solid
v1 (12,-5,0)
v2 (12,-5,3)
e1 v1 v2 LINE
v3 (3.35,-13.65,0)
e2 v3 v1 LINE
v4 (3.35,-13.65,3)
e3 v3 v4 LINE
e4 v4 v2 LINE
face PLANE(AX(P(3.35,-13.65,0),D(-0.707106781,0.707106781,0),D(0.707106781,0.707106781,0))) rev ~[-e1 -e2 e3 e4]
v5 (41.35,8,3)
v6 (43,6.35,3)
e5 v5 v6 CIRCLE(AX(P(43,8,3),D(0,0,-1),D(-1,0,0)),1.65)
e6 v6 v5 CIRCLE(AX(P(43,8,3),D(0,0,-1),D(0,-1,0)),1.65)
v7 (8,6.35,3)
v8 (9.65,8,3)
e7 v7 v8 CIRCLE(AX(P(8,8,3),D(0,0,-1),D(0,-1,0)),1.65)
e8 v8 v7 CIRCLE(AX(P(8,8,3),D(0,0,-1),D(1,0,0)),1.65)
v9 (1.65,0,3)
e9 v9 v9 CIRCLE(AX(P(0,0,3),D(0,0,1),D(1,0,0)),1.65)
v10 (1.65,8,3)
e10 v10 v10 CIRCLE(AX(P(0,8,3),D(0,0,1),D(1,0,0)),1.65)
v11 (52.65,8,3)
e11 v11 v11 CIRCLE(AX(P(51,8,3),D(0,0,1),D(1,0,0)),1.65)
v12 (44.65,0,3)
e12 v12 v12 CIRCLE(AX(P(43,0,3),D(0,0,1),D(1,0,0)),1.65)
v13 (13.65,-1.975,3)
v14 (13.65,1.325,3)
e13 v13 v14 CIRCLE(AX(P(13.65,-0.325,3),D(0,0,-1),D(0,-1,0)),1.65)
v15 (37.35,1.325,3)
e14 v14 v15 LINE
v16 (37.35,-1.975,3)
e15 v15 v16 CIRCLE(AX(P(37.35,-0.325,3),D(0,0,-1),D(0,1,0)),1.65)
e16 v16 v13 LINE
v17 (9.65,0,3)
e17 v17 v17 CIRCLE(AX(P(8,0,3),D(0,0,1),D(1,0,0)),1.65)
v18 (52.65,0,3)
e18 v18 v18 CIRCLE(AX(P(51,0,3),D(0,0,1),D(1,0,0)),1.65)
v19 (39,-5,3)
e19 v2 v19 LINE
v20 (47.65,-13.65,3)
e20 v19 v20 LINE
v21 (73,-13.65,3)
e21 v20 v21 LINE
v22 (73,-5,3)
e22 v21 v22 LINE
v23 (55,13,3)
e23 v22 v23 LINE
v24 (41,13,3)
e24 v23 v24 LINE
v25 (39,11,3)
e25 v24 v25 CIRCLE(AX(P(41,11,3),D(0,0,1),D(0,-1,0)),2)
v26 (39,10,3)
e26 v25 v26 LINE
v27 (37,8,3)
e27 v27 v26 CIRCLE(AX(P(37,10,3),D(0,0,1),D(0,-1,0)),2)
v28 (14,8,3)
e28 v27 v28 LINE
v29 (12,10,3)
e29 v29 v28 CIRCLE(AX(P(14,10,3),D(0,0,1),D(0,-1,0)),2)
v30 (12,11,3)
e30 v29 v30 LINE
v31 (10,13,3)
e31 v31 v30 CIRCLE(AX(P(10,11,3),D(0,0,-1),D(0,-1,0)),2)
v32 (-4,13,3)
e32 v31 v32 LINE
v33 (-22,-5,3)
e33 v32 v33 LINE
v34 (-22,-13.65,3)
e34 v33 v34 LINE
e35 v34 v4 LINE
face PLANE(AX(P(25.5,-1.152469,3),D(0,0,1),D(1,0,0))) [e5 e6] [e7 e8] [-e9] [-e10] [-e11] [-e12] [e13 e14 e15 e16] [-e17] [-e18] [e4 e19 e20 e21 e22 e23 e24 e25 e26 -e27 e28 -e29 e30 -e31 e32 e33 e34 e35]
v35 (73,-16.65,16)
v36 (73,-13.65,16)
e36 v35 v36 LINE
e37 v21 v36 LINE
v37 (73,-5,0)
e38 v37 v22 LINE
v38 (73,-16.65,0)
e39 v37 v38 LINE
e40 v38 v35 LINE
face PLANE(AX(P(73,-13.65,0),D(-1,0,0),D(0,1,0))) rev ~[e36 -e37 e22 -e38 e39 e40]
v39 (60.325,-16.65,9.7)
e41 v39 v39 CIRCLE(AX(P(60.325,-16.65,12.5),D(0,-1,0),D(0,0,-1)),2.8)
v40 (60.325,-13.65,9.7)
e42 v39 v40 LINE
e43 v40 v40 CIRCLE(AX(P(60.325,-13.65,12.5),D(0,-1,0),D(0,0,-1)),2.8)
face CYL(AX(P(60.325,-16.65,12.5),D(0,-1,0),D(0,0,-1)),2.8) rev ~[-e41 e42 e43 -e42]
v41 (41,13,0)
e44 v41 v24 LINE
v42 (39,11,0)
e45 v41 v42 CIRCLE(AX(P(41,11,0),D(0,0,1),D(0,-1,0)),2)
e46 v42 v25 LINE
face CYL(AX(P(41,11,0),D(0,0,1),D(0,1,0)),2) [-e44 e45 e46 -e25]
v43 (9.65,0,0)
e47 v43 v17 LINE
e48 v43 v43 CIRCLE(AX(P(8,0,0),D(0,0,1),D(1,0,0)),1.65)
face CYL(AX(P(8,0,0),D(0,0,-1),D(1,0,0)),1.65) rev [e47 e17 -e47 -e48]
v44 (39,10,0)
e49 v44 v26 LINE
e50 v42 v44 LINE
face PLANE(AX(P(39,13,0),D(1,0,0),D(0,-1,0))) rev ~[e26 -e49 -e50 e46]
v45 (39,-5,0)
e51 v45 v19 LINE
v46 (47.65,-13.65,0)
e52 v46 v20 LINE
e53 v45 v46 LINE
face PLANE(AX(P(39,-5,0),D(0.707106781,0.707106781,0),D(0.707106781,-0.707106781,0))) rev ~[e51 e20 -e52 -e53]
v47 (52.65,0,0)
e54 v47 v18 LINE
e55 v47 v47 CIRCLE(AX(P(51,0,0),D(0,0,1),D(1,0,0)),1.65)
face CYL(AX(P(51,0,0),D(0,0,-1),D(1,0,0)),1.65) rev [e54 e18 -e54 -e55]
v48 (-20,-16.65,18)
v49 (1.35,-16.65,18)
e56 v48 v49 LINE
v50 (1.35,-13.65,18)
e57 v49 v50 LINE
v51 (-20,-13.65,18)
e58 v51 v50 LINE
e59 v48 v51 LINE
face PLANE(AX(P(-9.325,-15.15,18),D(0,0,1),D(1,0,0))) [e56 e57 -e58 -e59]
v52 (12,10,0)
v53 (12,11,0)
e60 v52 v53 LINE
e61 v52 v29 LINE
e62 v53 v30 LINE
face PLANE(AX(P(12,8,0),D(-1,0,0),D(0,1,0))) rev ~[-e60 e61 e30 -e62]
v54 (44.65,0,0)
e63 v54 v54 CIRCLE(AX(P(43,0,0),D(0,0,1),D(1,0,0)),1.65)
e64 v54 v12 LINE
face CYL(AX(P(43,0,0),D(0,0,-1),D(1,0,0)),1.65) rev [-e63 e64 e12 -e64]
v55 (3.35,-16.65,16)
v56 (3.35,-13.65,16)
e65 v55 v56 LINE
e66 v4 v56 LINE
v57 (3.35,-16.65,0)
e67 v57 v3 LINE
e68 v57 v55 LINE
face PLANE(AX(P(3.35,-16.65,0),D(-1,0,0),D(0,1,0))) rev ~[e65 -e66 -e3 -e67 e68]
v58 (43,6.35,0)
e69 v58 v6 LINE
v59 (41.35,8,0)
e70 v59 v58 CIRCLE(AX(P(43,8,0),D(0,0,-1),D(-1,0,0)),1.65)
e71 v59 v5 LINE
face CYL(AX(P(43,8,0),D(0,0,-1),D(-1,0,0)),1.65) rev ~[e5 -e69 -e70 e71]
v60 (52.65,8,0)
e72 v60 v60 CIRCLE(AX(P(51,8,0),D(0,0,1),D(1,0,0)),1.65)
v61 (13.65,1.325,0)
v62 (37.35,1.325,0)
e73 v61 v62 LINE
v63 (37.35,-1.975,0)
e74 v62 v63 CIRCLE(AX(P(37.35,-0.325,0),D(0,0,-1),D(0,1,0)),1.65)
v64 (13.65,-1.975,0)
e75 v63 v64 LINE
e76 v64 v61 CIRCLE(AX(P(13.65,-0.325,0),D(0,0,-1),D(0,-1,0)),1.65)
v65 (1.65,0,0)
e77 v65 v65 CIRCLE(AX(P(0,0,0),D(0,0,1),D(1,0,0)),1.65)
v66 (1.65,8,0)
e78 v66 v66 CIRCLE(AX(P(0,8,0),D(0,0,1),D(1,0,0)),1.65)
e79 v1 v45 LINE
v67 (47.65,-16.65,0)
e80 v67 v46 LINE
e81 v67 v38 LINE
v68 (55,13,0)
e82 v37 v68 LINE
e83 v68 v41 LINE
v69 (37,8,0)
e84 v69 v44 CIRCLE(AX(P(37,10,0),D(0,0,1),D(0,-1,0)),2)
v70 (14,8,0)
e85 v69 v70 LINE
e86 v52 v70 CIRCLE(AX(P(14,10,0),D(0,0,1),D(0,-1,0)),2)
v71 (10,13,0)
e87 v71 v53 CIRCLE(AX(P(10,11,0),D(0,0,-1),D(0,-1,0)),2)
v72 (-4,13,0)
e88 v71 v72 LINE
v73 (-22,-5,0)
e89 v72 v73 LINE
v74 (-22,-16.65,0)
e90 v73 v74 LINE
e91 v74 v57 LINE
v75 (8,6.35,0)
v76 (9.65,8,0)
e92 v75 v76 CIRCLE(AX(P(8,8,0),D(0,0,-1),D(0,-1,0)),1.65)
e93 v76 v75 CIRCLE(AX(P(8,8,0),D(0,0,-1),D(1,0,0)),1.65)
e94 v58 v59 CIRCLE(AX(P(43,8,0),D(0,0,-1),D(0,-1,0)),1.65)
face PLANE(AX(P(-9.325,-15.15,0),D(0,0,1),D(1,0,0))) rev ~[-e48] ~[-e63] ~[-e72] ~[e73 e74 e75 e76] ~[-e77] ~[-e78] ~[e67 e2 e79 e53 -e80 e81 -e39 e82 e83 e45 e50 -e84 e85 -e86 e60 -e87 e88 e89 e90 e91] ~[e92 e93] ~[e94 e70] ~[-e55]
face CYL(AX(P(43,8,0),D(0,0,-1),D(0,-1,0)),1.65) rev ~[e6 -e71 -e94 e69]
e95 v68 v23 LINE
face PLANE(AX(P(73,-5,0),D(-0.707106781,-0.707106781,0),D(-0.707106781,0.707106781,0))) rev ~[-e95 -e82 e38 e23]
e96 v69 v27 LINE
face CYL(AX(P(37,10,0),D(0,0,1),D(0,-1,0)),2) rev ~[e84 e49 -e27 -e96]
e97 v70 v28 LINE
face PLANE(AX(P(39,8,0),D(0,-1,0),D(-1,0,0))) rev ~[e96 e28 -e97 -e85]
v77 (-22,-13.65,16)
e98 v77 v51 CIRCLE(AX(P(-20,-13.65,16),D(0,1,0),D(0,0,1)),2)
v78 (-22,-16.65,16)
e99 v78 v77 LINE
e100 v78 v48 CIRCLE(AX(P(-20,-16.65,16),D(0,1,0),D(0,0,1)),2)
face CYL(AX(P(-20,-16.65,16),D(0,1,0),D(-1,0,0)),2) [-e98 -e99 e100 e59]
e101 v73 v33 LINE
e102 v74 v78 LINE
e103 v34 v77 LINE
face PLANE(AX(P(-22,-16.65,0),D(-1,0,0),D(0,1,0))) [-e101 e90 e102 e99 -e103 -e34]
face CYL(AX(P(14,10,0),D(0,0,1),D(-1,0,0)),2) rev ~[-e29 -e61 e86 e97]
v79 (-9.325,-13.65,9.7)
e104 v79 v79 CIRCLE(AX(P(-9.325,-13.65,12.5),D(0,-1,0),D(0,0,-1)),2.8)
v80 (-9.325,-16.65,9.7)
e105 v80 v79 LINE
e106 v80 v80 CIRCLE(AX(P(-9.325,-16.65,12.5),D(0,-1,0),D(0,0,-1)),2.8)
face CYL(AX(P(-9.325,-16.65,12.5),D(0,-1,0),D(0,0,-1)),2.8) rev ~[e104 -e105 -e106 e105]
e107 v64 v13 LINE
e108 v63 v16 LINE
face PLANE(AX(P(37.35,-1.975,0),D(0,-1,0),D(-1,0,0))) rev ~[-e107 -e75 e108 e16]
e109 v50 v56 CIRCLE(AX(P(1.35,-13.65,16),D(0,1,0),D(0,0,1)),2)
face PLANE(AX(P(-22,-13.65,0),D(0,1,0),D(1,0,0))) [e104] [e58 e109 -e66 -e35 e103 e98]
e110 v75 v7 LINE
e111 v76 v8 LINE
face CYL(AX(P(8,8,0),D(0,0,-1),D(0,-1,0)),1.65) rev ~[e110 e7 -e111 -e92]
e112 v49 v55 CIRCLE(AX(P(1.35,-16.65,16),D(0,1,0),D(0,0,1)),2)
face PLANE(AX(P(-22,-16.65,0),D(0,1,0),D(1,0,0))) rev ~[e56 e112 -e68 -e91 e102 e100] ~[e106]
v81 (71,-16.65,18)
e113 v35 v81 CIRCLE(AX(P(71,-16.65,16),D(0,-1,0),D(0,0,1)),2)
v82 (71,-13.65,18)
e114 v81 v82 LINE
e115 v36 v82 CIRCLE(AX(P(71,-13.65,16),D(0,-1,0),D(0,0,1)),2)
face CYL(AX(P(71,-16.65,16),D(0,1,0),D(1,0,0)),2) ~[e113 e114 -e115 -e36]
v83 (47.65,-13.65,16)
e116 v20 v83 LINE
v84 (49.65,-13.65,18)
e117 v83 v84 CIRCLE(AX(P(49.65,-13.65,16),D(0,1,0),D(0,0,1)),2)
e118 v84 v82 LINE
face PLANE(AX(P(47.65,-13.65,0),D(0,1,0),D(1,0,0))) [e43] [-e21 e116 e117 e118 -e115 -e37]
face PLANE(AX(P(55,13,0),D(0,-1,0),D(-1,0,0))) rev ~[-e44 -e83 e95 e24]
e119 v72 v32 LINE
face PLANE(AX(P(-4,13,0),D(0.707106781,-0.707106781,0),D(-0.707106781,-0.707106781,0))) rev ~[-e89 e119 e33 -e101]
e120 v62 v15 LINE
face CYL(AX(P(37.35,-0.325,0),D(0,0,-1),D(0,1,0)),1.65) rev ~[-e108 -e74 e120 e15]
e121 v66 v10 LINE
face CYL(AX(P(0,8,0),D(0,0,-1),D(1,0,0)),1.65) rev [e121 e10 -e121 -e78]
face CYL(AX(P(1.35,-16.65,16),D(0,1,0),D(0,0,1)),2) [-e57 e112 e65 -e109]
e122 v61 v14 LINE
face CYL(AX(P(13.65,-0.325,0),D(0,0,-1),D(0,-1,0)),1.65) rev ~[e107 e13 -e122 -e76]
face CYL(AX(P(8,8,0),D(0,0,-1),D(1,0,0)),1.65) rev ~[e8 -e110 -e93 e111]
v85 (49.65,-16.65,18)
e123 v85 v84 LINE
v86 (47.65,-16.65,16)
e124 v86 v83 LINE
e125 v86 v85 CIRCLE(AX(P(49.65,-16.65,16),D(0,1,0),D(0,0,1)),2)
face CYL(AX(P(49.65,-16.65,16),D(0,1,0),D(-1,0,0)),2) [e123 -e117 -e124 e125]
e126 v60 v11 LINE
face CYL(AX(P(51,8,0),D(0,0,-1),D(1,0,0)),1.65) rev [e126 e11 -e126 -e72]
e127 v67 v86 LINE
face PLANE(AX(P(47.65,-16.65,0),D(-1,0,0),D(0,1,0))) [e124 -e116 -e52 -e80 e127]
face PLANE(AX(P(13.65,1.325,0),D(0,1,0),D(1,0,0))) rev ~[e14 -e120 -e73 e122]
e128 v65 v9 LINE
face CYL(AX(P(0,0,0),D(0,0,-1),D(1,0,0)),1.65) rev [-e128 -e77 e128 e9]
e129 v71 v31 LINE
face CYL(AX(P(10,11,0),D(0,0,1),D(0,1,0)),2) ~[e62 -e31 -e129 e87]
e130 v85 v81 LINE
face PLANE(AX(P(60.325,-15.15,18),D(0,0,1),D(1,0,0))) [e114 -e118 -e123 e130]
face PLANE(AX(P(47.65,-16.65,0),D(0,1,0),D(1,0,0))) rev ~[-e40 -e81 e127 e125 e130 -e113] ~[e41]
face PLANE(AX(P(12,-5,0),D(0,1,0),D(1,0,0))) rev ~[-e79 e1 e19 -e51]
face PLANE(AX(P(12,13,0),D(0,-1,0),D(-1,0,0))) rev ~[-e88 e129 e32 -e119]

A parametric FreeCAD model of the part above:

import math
import FreeCAD as App
import Part
import Sketcher
from FreeCAD import Vector
Q = App.Units.Quantity


def edges_at(feature, points):
    """Names of the edges that pass closest to the given points."""
    edges = feature.Shape.Edges
    near = lambda p: min(range(len(edges)), key=lambda i: edges[i].distToShape(Part.Vertex(*p))[0])
    return sorted({f"Edge{near(p) + 1}" for p in points})

doc = App.newDocument("Part")
body = doc.addObject("PartDesign::Body", "Body")

# Sketch on XY plane
sketch1 = body.newObject("Sketcher::SketchObject", "Sketch")
sketch1.AttachmentSupport = (doc.getObject("XY_Plane"), [""])
sketch1.MapMode = "FlatFace"
sketch1.addGeometry(Part.LineSegment(Vector(3.35, -13.65, 0), Vector(12, -5, 0)), False)
sketch1.addGeometry(Part.LineSegment(Vector(12, -5, 0), Vector(39, -5, 0)), False)
sketch1.addGeometry(Part.LineSegment(Vector(39, -5, 0), Vector(47.65, -13.65, 0)), False)
sketch1.addGeometry(Part.LineSegment(Vector(47.65, -13.65, 0), Vector(73, -13.65, 0)), False)
sketch1.addGeometry(Part.LineSegment(Vector(73, -13.65, 0), Vector(73, -5, 0)), False)
sketch1.addGeometry(Part.LineSegment(Vector(73, -5, 0), Vector(55, 13, 0)), False)
sketch1.addGeometry(Part.LineSegment(Vector(55, 13, 0), Vector(39, 13, 0)), False)
sketch1.addGeometry(Part.LineSegment(Vector(39, 13, 0), Vector(39, 8, 0)), False)
sketch1.addGeometry(Part.LineSegment(Vector(39, 8, 0), Vector(12, 8, 0)), False)
sketch1.addGeometry(Part.LineSegment(Vector(12, 8, 0), Vector(12, 13, 0)), False)
sketch1.addGeometry(Part.LineSegment(Vector(12, 13, 0), Vector(-4, 13, 0)), False)
sketch1.addGeometry(Part.LineSegment(Vector(-4, 13, 0), Vector(-22, -5, 0)), False)
sketch1.addGeometry(Part.LineSegment(Vector(-22, -5, 0), Vector(-22, -13.65, 0)), False)
sketch1.addGeometry(Part.LineSegment(Vector(-22, -13.65, 0), Vector(3.35, -13.65, 0)), False)
sketch1.addGeometry(Part.Circle(Vector(0, 0, 0), Vector(0, 0, 1), 1.65), False)
sketch1.addGeometry(Part.Circle(Vector(8, 0, 0), Vector(0, 0, 1), 1.65), False)
sketch1.addGeometry(Part.LineSegment(Vector(37.35, -1.975, 0), Vector(13.65, -1.975, 0)), False)
sketch1.addGeometry(Part.ArcOfCircle(Part.Circle(Vector(13.65, -0.325, 0), Vector(0, 0, 1), 1.65), math.radians(90), math.radians(270)), False)
sketch1.addGeometry(Part.LineSegment(Vector(13.65, 1.325, 0), Vector(37.35, 1.325, 0)), False)
sketch1.addGeometry(Part.ArcOfCircle(Part.Circle(Vector(37.35, -0.325, 0), Vector(0, 0, 1), 1.65), math.radians(-90), math.radians(90)), False)
sketch1.addGeometry(Part.Circle(Vector(43, 0, 0), Vector(0, 0, 1), 1.65), False)
sketch1.addGeometry(Part.Circle(Vector(51, 0, 0), Vector(0, 0, 1), 1.65), False)
sketch1.addGeometry(Part.Circle(Vector(0, 8, 0), Vector(0, 0, 1), 1.65), False)
sketch1.addGeometry(Part.ArcOfCircle(Part.Circle(Vector(8, 8, 0), Vector(0, 0, 1), 1.65), math.radians(-90), math.radians(0)), False)
sketch1.addGeometry(Part.ArcOfCircle(Part.Circle(Vector(8, 8, 0), Vector(0, 0, 1), 1.65), math.radians(0), math.radians(270)), False)
sketch1.addGeometry(Part.ArcOfCircle(Part.Circle(Vector(43, 8, 0), Vector(0, 0, 1), 1.65), math.radians(-90), math.radians(180)), False)
sketch1.addGeometry(Part.ArcOfCircle(Part.Circle(Vector(43, 8, 0), Vector(0, 0, 1), 1.65), math.radians(180), math.radians(270)), False)
sketch1.addGeometry(Part.Circle(Vector(51, 8, 0), Vector(0, 0, 1), 1.65), False)
sketch1.addConstraint(Sketcher.Constraint("Coincident", 0, 2, 1, 1))
sketch1.addConstraint(Sketcher.Constraint("Coincident", 1, 2, 2, 1))
sketch1.addConstraint(Sketcher.Constraint("Coincident", 2, 2, 3, 1))
sketch1.addConstraint(Sketcher.Constraint("Coincident", 3, 2, 4, 1))
sketch1.addConstraint(Sketcher.Constraint("Coincident", 4, 2, 5, 1))
sketch1.addConstraint(Sketcher.Constraint("Coincident", 5, 2, 6, 1))
sketch1.addConstraint(Sketcher.Constraint("Coincident", 6, 2, 7, 1))
sketch1.addConstraint(Sketcher.Constraint("Coincident", 7, 2, 8, 1))
sketch1.addConstraint(Sketcher.Constraint("Coincident", 8, 2, 9, 1))
sketch1.addConstraint(Sketcher.Constraint("Coincident", 9, 2, 10, 1))
sketch1.addConstraint(Sketcher.Constraint("Coincident", 10, 2, 11, 1))
sketch1.addConstraint(Sketcher.Constraint("Coincident", 11, 2, 12, 1))
sketch1.addConstraint(Sketcher.Constraint("Coincident", 12, 2, 13, 1))
sketch1.addConstraint(Sketcher.Constraint("Coincident", 13, 2, 0, 1))
sketch1.addConstraint(Sketcher.Constraint("Tangent", 16, 2, 17, 2))
sketch1.addConstraint(Sketcher.Constraint("Tangent", 17, 1, 18, 1))
sketch1.addConstraint(Sketcher.Constraint("Tangent", 18, 2, 19, 2))
sketch1.addConstraint(Sketcher.Constraint("Tangent", 19, 1, 16, 1))
sketch1.addConstraint(Sketcher.Constraint("Tangent", 23, 1, 24, 2))
sketch1.addConstraint(Sketcher.Constraint("Coincident", 24, 1, 23, 2))
sketch1.addConstraint(Sketcher.Constraint("Tangent", 25, 1, 26, 2))
sketch1.addConstraint(Sketcher.Constraint("Coincident", 26, 1, 25, 2))
sketch1.addConstraint(Sketcher.Constraint("Horizontal", 1))
sketch1.addConstraint(Sketcher.Constraint("Horizontal", 3))
sketch1.addConstraint(Sketcher.Constraint("Vertical", 4))
sketch1.addConstraint(Sketcher.Constraint("Horizontal", 6))
sketch1.addConstraint(Sketcher.Constraint("Vertical", 7))
sketch1.addConstraint(Sketcher.Constraint("Horizontal", 8))
sketch1.addConstraint(Sketcher.Constraint("Vertical", 9))
sketch1.addConstraint(Sketcher.Constraint("Horizontal", 10))
sketch1.addConstraint(Sketcher.Constraint("Vertical", 12))
sketch1.addConstraint(Sketcher.Constraint("Horizontal", 13))
sketch1.addConstraint(Sketcher.Constraint("Horizontal", 16))
sketch1.addConstraint(Sketcher.Constraint("Horizontal", 18))
sketch1.addConstraint(Sketcher.Constraint("Coincident", 14, 3, -1, 1))
sketch1.addConstraint(Sketcher.Constraint("Equal", 14, 15))
sketch1.addConstraint(Sketcher.Constraint("Equal", 15, 17))
sketch1.addConstraint(Sketcher.Constraint("Equal", 19, 20))
sketch1.addConstraint(Sketcher.Constraint("Equal", 20, 21))
sketch1.addConstraint(Sketcher.Constraint("Equal", 21, 22))
sketch1.addConstraint(Sketcher.Constraint("Equal", 22, 23))
sketch1.addConstraint(Sketcher.Constraint("Equal", 24, 25))
sketch1.addConstraint(Sketcher.Constraint("Equal", 26, 27))
sketch1.addConstraint(Sketcher.Constraint("PointOnObject", 15, 3, -1))
sketch1.addConstraint(Sketcher.Constraint("PointOnObject", 20, 3, -1))
sketch1.addConstraint(Sketcher.Constraint("PointOnObject", 21, 3, -1))
sketch1.addConstraint(Sketcher.Constraint("PointOnObject", 22, 3, -2))
sketch1.addConstraint(Sketcher.Constraint("Perpendicular", 0, 2))
sketch1.addConstraint(Sketcher.Constraint("Parallel", 2, 5))
sketch1.addConstraint(Sketcher.Constraint("Perpendicular", 5, 11))
sketch1.addConstraint(Sketcher.Constraint("Horizontal", 22, 3, 23, 3))
sketch1.addConstraint(Sketcher.Constraint("Horizontal", 24, 3, 25, 3))
sketch1.addConstraint(Sketcher.Constraint("Horizontal", 26, 3, 27, 3))
sketch1.addConstraint(Sketcher.Constraint("Horizontal", 1, 2, 4, 2))
sketch1.addConstraint(Sketcher.Constraint("Horizontal", 27, 3, 7, 2))
sketch1.addConstraint(Sketcher.Constraint("Horizontal", 6, 2, 9, 2))
sketch1.addConstraint(Sketcher.Constraint("Horizontal", 4, 2, 11, 2))
sketch1.addConstraint(Sketcher.Constraint("Horizontal", 3, 2, 12, 2))
sketch1.addConstraint(Sketcher.Constraint("Horizontal", 8, 2, 24, 1))
sketch1.addConstraint(Sketcher.Constraint("Horizontal", 24, 1, 26, 1))
sketch1.addConstraint(Sketcher.Constraint("Vertical", 15, 3, 23, 3))
sketch1.addConstraint(Sketcher.Constraint("Vertical", 20, 3, 25, 3))
sketch1.addConstraint(Sketcher.Constraint("Vertical", 21, 3, 27, 3))
sketch1.addConstraint(Sketcher.Constraint("Vertical", 1, 2, 6, 2))
sketch1.addConstraint(Sketcher.Constraint("Vertical", 0, 2, 8, 2))
sketch1.addConstraint(Sketcher.Constraint("Vertical", 24, 3, 23, 1))
sketch1.addConstraint(Sketcher.Constraint("Vertical", 26, 3, 25, 1))
sketch1.addConstraint(Sketcher.Constraint("Equal", 6, 10))
sketch1.addConstraint(Sketcher.Constraint("Equal", 3, 13))
sketch1.addConstraint(Sketcher.Constraint("Diameter", 14, Q("3.3 mm")))
sketch1.addConstraint(Sketcher.Constraint("DistanceX", 1, 1, 1, 2, Q("27 mm")))
sketch1.addConstraint(Sketcher.Constraint("DistanceX", 6, 2, 6, 1, Q("16 mm")))
sketch1.addConstraint(Sketcher.Constraint("DistanceY", 7, 2, 7, 1, Q("5 mm")))
sketch1.addConstraint(Sketcher.Constraint("DistanceX", 16, 2, 16, 1, Q("23.7 mm")))
sketch1.addConstraint(Sketcher.Constraint("DistanceX", -1, 1, 15, 3, Q("8 mm")))
sketch1.addConstraint(Sketcher.Constraint("DistanceX", -1, 1, 20, 3, Q("43 mm")))
sketch1.addConstraint(Sketcher.Constraint("DistanceX", -1, 1, 21, 3, Q("51 mm")))
sketch1.addConstraint(Sketcher.Constraint("DistanceY", -1, 1, 22, 3, Q("8 mm")))
sketch1.addConstraint(Sketcher.Constraint("DistanceX", -1, 1, 0, 2, Q("12 mm")))
sketch1.addConstraint(Sketcher.Constraint("DistanceY", 0, 2, -1, 1, Q("5 mm")))
sketch1.addConstraint(Sketcher.Constraint("DistanceX", 3, 1, 3, 2, Q("25.35 mm")))
sketch1.addConstraint(Sketcher.Constraint("DistanceX", 19, 3, 2, 2, Q("10.3 mm")))
sketch1.addConstraint(Sketcher.Constraint("DistanceY", 17, 3, -1, 1, Q("0.325 mm")))
pad1 = body.newObject("PartDesign::Pad", "Pad")
pad1.Profile = sketch1
pad1.Length = 3

# Sketch on XY plane
sketch2 = body.newObject("Sketcher::SketchObject", "Sketch001")
sketch2.AttachmentSupport = (doc.getObject("XY_Plane"), [""])
sketch2.MapMode = "FlatFace"
sketch2.addGeometry(Part.LineSegment(Vector(-22, -13.65, 0), Vector(-22, -16.65, 0)), False)
sketch2.addGeometry(Part.LineSegment(Vector(-22, -16.65, 0), Vector(3.35, -16.65, 0)), False)
sketch2.addGeometry(Part.LineSegment(Vector(3.35, -16.65, 0), Vector(3.35, -13.65, 0)), False)
sketch2.addGeometry(Part.LineSegment(Vector(3.35, -13.65, 0), Vector(-22, -13.65, 0)), False)
sketch2.addGeometry(Part.LineSegment(Vector(47.65, -13.65, 0), Vector(47.65, -16.65, 0)), False)
sketch2.addGeometry(Part.LineSegment(Vector(47.65, -16.65, 0), Vector(73, -16.65, 0)), False)
sketch2.addGeometry(Part.LineSegment(Vector(73, -16.65, 0), Vector(73, -13.65, 0)), False)
sketch2.addGeometry(Part.LineSegment(Vector(73, -13.65, 0), Vector(47.65, -13.65, 0)), False)
sketch2.addConstraint(Sketcher.Constraint("Coincident", 0, 2, 1, 1))
sketch2.addConstraint(Sketcher.Constraint("Coincident", 1, 2, 2, 1))
sketch2.addConstraint(Sketcher.Constraint("Coincident", 2, 2, 3, 1))
sketch2.addConstraint(Sketcher.Constraint("Coincident", 3, 2, 0, 1))
sketch2.addConstraint(Sketcher.Constraint("Coincident", 4, 2, 5, 1))
sketch2.addConstraint(Sketcher.Constraint("Coincident", 5, 2, 6, 1))
sketch2.addConstraint(Sketcher.Constraint("Coincident", 6, 2, 7, 1))
sketch2.addConstraint(Sketcher.Constraint("Coincident", 7, 2, 4, 1))
sketch2.addConstraint(Sketcher.Constraint("Vertical", 0))
sketch2.addConstraint(Sketcher.Constraint("Horizontal", 1))
sketch2.addConstraint(Sketcher.Constraint("Vertical", 2))
sketch2.addConstraint(Sketcher.Constraint("Horizontal", 3))
sketch2.addConstraint(Sketcher.Constraint("Vertical", 4))
sketch2.addConstraint(Sketcher.Constraint("Horizontal", 5))
sketch2.addConstraint(Sketcher.Constraint("Vertical", 6))
sketch2.addConstraint(Sketcher.Constraint("Horizontal", 7))
sketch2.addConstraint(Sketcher.Constraint("Horizontal", 1, 2, 4, 2))
sketch2.addConstraint(Sketcher.Constraint("Horizontal", 3, 2, 6, 2))
sketch2.addConstraint(Sketcher.Constraint("Equal", 3, 5))
sketch2.addConstraint(Sketcher.Constraint("DistanceY", 0, 2, 0, 1, Q("3 mm")))
sketch2.addConstraint(Sketcher.Constraint("DistanceX", 0, 2, -1, 1, Q("22 mm")))
sketch2.addConstraint(Sketcher.Constraint("DistanceX", -1, 1, 5, 2, Q("73 mm")))
sketch2.addConstraint(Sketcher.Constraint("DistanceX", 1, 1, 1, 2, Q("25.35 mm")))
sketch2.addConstraint(Sketcher.Constraint("DistanceY", 0, 2, -1, 1, Q("16.65 mm")))
pad2 = body.newObject("PartDesign::Pad", "Pad001")
pad2.Profile = sketch2
pad2.Length = 18

# Sketch on XZ plane
sketch3 = body.newObject("Sketcher::SketchObject", "Sketch002")
sketch3.AttachmentSupport = (doc.getObject("XZ_Plane"), [""])
sketch3.MapMode = "FlatFace"
sketch3.AttachmentOffset = App.Placement(Vector(0, 0, 16.65), App.Rotation())
sketch3.addGeometry(Part.Circle(Vector(60.325, 12.5, 0), Vector(0, 0, 1), 2.8), False)
sketch3.addGeometry(Part.Circle(Vector(-9.325, 12.5, 0), Vector(0, 0, 1), 2.8), False)
sketch3.addConstraint(Sketcher.Constraint("Equal", 0, 1))
sketch3.addConstraint(Sketcher.Constraint("Horizontal", 0, 3, 1, 3))
sketch3.addConstraint(Sketcher.Constraint("Diameter", 0, Q("5.6 mm")))
sketch3.addConstraint(Sketcher.Constraint("DistanceY", -1, 1, 0, 3, Q("12.5 mm")))
sketch3.addConstraint(Sketcher.Constraint("DistanceX", 1, 3, 0, 3, Q("69.65 mm")))
sketch3.addConstraint(Sketcher.Constraint("DistanceX", -1, 1, 0, 3, Q("60.325 mm")))
pocket1 = body.newObject("PartDesign::Pocket", "Pocket")
pocket1.Profile = sketch3
pocket1.Length = 18
doc.recompute()

fillet = body.newObject("PartDesign::Fillet", "Fillet")
fillet.Base = (pocket1, edges_at(pocket1, [
    (39, 13, 1.5),
    (12, 13, 1.5),
    (12, 8, 1.5),
    (39, 8, 1.5),
    (-22, -15.15, 18),
    (3.35, -15.15, 18),
    (47.65, -15.15, 18),
    (73, -15.15, 18),
]))
fillet.Radius = 2

doc.recompute()
